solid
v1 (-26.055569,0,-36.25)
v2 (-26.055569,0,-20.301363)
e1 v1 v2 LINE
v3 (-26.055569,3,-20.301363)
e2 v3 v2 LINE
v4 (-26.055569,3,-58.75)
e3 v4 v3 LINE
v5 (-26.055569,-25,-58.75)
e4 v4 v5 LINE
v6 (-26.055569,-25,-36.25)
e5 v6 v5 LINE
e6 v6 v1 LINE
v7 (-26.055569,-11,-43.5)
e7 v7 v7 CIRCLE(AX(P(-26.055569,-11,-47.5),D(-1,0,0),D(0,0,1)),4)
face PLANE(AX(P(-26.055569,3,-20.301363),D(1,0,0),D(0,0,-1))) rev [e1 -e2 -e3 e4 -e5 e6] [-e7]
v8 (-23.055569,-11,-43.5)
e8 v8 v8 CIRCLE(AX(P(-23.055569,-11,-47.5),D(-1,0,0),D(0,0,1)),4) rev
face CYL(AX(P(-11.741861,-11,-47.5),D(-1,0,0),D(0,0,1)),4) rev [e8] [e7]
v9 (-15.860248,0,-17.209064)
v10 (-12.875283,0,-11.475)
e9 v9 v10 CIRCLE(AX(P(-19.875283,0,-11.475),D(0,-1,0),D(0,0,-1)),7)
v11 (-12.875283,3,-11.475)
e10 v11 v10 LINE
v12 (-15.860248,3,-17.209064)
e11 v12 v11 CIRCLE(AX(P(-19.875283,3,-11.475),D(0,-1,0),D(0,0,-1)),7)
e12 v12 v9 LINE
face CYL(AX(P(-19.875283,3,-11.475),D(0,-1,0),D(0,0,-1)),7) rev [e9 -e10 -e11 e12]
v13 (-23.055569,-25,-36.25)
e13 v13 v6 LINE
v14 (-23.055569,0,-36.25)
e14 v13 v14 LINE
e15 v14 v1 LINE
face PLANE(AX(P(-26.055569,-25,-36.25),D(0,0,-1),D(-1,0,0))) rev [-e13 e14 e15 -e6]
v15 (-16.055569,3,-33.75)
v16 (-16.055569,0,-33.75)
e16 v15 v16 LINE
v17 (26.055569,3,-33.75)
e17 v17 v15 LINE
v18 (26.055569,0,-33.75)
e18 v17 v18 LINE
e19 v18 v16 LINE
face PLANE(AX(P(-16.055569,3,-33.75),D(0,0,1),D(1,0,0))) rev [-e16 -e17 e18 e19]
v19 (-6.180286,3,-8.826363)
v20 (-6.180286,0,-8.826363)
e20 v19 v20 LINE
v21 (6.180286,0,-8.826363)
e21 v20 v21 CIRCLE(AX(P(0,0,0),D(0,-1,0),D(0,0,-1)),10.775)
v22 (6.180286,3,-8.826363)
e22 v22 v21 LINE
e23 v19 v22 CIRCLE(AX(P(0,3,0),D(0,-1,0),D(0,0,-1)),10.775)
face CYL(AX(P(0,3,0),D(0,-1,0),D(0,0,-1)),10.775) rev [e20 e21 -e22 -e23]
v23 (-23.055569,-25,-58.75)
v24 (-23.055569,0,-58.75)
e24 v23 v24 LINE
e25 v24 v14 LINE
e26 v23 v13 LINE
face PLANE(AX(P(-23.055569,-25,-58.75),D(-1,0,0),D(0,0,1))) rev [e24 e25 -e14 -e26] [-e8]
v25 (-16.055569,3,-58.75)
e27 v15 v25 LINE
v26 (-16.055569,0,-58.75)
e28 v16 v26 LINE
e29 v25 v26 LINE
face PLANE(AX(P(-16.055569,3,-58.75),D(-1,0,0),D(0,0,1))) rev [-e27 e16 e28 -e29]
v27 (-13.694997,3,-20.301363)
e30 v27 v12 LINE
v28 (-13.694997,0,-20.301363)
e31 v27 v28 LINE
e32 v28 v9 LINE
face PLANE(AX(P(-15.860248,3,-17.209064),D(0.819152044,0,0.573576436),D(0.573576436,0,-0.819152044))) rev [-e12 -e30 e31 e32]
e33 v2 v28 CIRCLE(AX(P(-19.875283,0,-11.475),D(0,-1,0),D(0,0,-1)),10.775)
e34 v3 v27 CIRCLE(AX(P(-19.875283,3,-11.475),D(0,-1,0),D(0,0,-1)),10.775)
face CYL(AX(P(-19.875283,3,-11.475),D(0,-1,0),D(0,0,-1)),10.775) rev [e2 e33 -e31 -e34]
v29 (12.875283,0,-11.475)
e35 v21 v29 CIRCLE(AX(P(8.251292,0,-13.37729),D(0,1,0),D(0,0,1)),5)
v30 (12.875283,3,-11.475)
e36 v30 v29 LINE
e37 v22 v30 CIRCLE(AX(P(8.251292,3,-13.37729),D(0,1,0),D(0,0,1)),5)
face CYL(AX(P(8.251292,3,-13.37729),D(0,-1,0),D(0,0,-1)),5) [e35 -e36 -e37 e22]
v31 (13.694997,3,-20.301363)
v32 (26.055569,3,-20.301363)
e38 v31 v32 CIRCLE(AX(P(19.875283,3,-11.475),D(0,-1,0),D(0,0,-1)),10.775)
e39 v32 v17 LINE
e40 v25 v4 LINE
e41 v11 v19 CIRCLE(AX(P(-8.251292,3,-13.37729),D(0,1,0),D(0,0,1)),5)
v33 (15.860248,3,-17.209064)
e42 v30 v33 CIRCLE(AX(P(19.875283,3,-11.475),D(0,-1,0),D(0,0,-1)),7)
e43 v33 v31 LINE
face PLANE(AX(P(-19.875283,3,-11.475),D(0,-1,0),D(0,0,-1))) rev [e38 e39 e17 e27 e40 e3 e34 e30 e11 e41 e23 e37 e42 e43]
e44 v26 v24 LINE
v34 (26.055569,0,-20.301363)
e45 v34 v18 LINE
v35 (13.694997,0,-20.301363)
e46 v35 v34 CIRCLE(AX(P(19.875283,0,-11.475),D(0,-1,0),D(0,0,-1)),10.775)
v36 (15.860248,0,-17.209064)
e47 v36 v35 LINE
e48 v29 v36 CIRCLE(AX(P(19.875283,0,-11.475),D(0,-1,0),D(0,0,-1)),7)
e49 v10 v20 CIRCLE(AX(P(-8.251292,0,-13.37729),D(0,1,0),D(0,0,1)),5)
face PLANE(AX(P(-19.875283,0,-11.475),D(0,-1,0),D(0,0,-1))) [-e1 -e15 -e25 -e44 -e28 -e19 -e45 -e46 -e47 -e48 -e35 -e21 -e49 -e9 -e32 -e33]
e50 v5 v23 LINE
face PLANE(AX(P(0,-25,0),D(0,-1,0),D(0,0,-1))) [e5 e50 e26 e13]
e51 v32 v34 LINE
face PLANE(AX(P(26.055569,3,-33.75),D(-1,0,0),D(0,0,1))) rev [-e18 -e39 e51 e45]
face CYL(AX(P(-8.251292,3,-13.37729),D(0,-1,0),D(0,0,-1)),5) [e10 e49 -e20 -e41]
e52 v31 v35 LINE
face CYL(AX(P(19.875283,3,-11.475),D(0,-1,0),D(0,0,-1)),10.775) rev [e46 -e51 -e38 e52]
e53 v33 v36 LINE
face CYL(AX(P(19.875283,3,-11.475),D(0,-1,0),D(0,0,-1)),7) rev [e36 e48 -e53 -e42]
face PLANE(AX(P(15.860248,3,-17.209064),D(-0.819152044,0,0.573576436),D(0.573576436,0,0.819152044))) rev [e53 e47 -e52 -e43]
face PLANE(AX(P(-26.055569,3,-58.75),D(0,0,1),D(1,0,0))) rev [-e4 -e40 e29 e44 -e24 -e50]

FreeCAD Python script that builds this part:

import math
import FreeCAD as App
import Part
import Sketcher
Q = App.Units.Quantity

doc = App.newDocument("Part")
body = doc.addObject("PartDesign::Body", "Body")

# Sketch on XZ plane
sketch1 = body.newObject("Sketcher::SketchObject", "Sketch")
sketch1.AttachmentSupport = (doc.getObject("XZ_Plane"), [""])
sketch1.MapMode = "FlatFace"
sketch1.addGeometry([
    Part.LineSegment(App.Vector(-13.7, -20.3, 0), App.Vector(-15.9, -17.2, 0)),  # 0
    Part.ArcOfCircle(Part.Circle(App.Vector(-19.9, -11.5, 0), App.Vector(0, 0, 1), 7), math.radians(-55), math.radians(0)),  # 1
    Part.ArcOfCircle(Part.Circle(App.Vector(-8.3, -13.4, 0), App.Vector(0, 0, 1), 5), math.radians(66), math.radians(158)),  # 2
    Part.ArcOfCircle(Part.Circle(App.Vector(0, 0, 0), App.Vector(0, 0, 1), 10.8), math.radians(-125), math.radians(-55)),  # 3
    Part.ArcOfCircle(Part.Circle(App.Vector(8.3, -13.4, 0), App.Vector(0, 0, 1), 5), math.radians(22), math.radians(114)),  # 4
    Part.ArcOfCircle(Part.Circle(App.Vector(19.9, -11.5, 0), App.Vector(0, 0, 1), 7), math.radians(-180), math.radians(-125)),  # 5
    Part.LineSegment(App.Vector(15.9, -17.2, 0), App.Vector(13.7, -20.3, 0)),  # 6
    Part.ArcOfCircle(Part.Circle(App.Vector(19.9, -11.5, 0), App.Vector(0, 0, 1), 10.8), math.radians(-125), math.radians(-55)),  # 7
    Part.LineSegment(App.Vector(26.1, -20.3, 0), App.Vector(26.1, -33.8, 0)),  # 8
    Part.LineSegment(App.Vector(26.1, -33.8, 0), App.Vector(-16.1, -33.8, 0)),  # 9
    Part.LineSegment(App.Vector(-16.1, -33.8, 0), App.Vector(-16.1, -58.8, 0)),  # 10
    Part.LineSegment(App.Vector(-16.1, -58.8, 0), App.Vector(-26.1, -58.8, 0)),  # 11
    Part.LineSegment(App.Vector(-26.1, -58.8, 0), App.Vector(-26.1, -20.3, 0)),  # 12
    Part.ArcOfCircle(Part.Circle(App.Vector(-19.9, -11.5, 0), App.Vector(0, 0, 1), 10.8), math.radians(-125), math.radians(-55)),  # 13
], False)
sketch1.addConstraint([
    Sketcher.Constraint("Coincident", 0, 2, 1, 1),
    Sketcher.Constraint("Coincident", 1, 2, 2, 2),
    Sketcher.Constraint("Coincident", 2, 1, 3, 1),
    Sketcher.Constraint("Coincident", 3, 2, 4, 2),
    Sketcher.Constraint("Coincident", 4, 1, 5, 1),
    Sketcher.Constraint("Coincident", 5, 2, 6, 1),
    Sketcher.Constraint("Coincident", 6, 2, 7, 1),
    Sketcher.Constraint("Coincident", 7, 2, 8, 1),
    Sketcher.Constraint("Coincident", 8, 2, 9, 1),
    Sketcher.Constraint("Coincident", 9, 2, 10, 1),
    Sketcher.Constraint("Coincident", 10, 2, 11, 1),
    Sketcher.Constraint("Coincident", 11, 2, 12, 1),
    Sketcher.Constraint("Coincident", 12, 2, 13, 1),
    Sketcher.Constraint("Coincident", 13, 2, 0, 1),
    Sketcher.Constraint("Vertical", 8),
    Sketcher.Constraint("Horizontal", 9),
    Sketcher.Constraint("Vertical", 10),
    Sketcher.Constraint("Horizontal", 11),
    Sketcher.Constraint("Vertical", 12),
    Sketcher.Constraint("Coincident", 3, 3, -1, 1),
    Sketcher.Constraint("Coincident", 7, 3, 5, 3),
    Sketcher.Constraint("Coincident", 13, 3, 1, 3),
    Sketcher.Constraint("Equal", 2, 4),
    Sketcher.Constraint("Equal", 1, 5),
    Sketcher.Constraint("Equal", 3, 7),
    Sketcher.Constraint("Equal", 7, 13),
    Sketcher.Constraint("Symmetric", 2, 3, 4, 3, -2),
    Sketcher.Constraint("Symmetric", 1, 3, 5, 3, -2),
    Sketcher.Constraint("Horizontal", 13, 3, 1, 2),
    Sketcher.Constraint("Horizontal", 0, 2, 5, 2),
    Sketcher.Constraint("Horizontal", 6, 2, 7, 2),
    Sketcher.Constraint("Horizontal", 7, 2, 12, 2),
    Sketcher.Constraint("Horizontal", 12, 2, 13, 2),
    Sketcher.Constraint("Radius", 1, 7.0),
    Sketcher.Constraint("Radius", 2, 5.0),
    Sketcher.Constraint("DistanceX", 11, 2, 11, 1, 10.0),
    Sketcher.Constraint("DistanceY", 10, 2, 10, 1, 25.0),
    Sketcher.Constraint("Angle", 0, Q("125 deg")),
    Sketcher.Constraint("Radius", 3, 10.775),
    Sketcher.Constraint("DistanceY", 8, 2, -1, 1, 33.75),
    Sketcher.Constraint("DistanceY", 1, 3, -1, 1, 11.475),
    Sketcher.Constraint("DistanceX", 9, 2, 9, 1, 42.111138),
    Sketcher.Constraint("DistanceY", 0, 2, 2, 1, 8.382701),
    Sketcher.Constraint("DistanceY", 8, 2, 8, 1, 13.448637),
])
pad1 = body.newObject("PartDesign::Pad", "Pad")
pad1.Profile = sketch1
pad1.Length = 3
pad1.Reversed = True

# Sketch on XZ plane
sketch2 = body.newObject("Sketcher::SketchObject", "Sketch001")
sketch2.AttachmentSupport = (doc.getObject("XZ_Plane"), [""])
sketch2.MapMode = "FlatFace"
sketch2.addGeometry([
    Part.LineSegment(App.Vector(-26.1, -36.2, 0), App.Vector(-26.1, -58.8, 0)),
    Part.LineSegment(App.Vector(-26.1, -58.8, 0), App.Vector(-23.1, -58.8, 0)),
    Part.LineSegment(App.Vector(-23.1, -58.8, 0), App.Vector(-23.1, -36.2, 0)),
    Part.LineSegment(App.Vector(-23.1, -36.2, 0), App.Vector(-26.1, -36.2, 0)),
], False)
sketch2.addConstraint([
    Sketcher.Constraint("Coincident", 0, 2, 1, 1),
    Sketcher.Constraint("Coincident", 1, 2, 2, 1),
    Sketcher.Constraint("Coincident", 2, 2, 3, 1),
    Sketcher.Constraint("Coincident", 3, 2, 0, 1),
    Sketcher.Constraint("Vertical", 0),
    Sketcher.Constraint("Horizontal", 1),
    Sketcher.Constraint("Vertical", 2),
    Sketcher.Constraint("Horizontal", 3),
    Sketcher.Constraint("DistanceX", 1, 1, 1, 2, 3.0),
    Sketcher.Constraint("DistanceY", 0, 2, 0, 1, 22.5),
    Sketcher.Constraint("DistanceY", 0, 2, -1, 1, 58.75),
    Sketcher.Constraint("DistanceX", 0, 2, -1, 1, 26.055569),
])
pad2 = body.newObject("PartDesign::Pad", "Pad001")
pad2.Profile = sketch2
pad2.Length = 25

# Sketch on YZ plane
sketch3 = body.newObject("Sketcher::SketchObject", "Sketch002")
sketch3.AttachmentSupport = (doc.getObject("YZ_Plane"), [""])
sketch3.MapMode = "FlatFace"
sketch3.AttachmentOffset = App.Placement(App.Vector(0, 0, -26.055569), App.Rotation())
sketch3.addGeometry(Part.Circle(App.Vector(-11, -47.5, 0), App.Vector(0, 0, 1), 4), False)
sketch3.addConstraint([
    Sketcher.Constraint("Diameter", 0, 8.0),
    Sketcher.Constraint("DistanceX", 0, 3, -1, 1, 11.0),
    Sketcher.Constraint("DistanceY", 0, 3, -1, 1, 47.5),
])
pocket1 = body.newObject("PartDesign::Pocket", "Pocket")
pocket1.Profile = sketch3
pocket1.Length = 3
pocket1.Reversed = True

doc.recompute()
